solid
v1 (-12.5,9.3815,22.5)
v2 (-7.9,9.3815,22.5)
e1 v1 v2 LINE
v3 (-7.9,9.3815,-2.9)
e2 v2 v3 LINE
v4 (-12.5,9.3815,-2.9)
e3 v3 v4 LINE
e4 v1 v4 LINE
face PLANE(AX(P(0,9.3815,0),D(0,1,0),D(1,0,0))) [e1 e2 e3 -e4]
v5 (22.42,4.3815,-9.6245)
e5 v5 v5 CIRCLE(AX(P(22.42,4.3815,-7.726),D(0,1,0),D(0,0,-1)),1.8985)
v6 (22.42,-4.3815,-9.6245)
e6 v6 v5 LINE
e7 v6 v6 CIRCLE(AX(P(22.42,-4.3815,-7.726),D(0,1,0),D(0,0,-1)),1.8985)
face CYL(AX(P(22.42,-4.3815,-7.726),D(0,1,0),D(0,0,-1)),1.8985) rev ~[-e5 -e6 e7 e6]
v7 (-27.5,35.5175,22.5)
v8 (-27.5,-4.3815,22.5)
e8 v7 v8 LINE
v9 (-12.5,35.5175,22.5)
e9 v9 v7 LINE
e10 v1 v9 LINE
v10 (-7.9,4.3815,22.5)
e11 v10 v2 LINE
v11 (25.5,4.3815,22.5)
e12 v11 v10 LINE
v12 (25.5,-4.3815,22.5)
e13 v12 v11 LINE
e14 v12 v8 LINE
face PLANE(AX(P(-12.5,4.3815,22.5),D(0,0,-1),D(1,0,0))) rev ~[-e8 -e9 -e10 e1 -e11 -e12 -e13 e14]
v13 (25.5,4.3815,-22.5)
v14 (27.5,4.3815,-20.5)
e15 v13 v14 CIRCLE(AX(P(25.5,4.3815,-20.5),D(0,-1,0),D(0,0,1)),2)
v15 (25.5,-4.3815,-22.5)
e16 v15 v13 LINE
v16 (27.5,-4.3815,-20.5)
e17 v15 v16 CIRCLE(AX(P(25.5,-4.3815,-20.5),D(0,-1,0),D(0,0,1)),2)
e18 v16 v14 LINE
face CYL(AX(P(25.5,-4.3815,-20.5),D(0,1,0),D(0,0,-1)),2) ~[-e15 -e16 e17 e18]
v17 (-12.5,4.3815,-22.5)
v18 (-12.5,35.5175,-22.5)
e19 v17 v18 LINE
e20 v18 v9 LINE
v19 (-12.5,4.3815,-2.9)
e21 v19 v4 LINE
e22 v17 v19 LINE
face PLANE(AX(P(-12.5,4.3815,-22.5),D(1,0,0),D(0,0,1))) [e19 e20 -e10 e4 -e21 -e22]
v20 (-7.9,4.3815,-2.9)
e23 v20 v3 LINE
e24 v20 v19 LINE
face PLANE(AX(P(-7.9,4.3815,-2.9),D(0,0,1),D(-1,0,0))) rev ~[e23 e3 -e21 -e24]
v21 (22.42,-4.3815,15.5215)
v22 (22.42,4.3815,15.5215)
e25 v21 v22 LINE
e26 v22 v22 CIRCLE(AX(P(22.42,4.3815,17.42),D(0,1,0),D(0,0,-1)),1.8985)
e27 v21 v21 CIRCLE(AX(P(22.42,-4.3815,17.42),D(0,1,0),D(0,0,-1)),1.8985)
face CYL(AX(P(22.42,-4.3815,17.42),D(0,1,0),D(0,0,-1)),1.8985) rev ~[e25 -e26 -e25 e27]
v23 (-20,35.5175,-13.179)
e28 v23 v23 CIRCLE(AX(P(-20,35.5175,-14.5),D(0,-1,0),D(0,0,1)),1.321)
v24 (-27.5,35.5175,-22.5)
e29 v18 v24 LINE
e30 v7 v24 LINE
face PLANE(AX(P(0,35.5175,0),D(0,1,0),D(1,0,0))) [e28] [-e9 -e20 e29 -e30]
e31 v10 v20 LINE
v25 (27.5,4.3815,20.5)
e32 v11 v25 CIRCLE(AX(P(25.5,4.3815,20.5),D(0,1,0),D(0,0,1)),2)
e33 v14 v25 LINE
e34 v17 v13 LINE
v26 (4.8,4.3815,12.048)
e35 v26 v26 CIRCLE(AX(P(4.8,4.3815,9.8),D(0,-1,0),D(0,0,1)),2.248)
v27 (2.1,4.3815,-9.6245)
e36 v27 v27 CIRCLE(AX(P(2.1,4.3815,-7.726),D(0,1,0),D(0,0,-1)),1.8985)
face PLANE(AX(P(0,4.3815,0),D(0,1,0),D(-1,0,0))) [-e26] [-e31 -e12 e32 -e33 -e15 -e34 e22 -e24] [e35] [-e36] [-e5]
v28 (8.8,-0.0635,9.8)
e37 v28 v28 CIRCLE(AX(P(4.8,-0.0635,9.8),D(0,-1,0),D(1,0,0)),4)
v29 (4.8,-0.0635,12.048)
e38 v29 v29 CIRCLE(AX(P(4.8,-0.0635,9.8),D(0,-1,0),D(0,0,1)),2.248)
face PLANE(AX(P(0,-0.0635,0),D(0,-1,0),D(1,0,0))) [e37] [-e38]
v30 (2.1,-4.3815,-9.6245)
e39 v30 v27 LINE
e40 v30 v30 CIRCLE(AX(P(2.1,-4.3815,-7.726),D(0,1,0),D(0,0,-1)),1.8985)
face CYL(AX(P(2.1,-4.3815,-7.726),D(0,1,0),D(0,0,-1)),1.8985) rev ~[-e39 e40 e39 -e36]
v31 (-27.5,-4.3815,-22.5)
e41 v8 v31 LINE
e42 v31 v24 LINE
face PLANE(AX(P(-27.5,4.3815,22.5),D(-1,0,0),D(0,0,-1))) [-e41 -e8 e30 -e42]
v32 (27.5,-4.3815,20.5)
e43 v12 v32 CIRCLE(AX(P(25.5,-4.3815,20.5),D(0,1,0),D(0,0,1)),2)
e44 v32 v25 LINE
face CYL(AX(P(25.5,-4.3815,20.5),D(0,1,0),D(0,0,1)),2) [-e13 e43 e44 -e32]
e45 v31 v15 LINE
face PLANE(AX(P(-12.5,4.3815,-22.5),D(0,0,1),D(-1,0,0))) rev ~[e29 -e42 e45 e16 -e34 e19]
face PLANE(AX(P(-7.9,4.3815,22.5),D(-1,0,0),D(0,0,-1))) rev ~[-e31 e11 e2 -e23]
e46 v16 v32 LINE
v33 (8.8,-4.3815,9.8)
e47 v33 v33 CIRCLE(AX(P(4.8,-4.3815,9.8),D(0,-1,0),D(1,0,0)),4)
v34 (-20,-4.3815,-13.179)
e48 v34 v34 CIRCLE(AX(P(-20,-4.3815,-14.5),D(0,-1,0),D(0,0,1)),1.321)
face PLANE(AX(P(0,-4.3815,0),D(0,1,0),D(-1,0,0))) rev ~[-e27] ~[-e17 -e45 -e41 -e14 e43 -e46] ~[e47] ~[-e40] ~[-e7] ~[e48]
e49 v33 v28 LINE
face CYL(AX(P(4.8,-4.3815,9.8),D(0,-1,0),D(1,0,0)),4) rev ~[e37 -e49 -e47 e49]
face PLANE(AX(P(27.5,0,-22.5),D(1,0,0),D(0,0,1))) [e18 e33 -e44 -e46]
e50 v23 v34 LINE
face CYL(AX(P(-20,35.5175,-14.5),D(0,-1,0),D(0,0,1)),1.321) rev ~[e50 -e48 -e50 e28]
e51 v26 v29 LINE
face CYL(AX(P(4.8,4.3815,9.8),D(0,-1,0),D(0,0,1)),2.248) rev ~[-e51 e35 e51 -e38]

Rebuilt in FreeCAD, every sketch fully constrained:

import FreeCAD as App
import Part
import Sketcher

V = App.Vector
Q = App.Units.Quantity


def edges_at(feature, points):
    """Names of the edges that pass closest to the given points."""
    edges = feature.Shape.Edges
    near = lambda p: min(range(len(edges)), key=lambda i: edges[i].distToShape(Part.Vertex(*p))[0])
    return sorted({f"Edge{near(p) + 1}" for p in points})


def add_polygon(sketch, points):
    """Adds a closed chain of lines whose ends are joined by coincident constraints."""
    first, n = sketch.GeometryCount, len(points)
    for a, b in zip(points, points[1:] + points[:1]):
        sketch.addGeometry(Part.LineSegment(App.Vector(*a, 0), App.Vector(*b, 0)), False)
    for i in range(n):
        sketch.addConstraint(Sketcher.Constraint("Coincident", first + i, 2, first + (i + 1) % n, 1))

doc = App.newDocument("Part")
body = doc.addObject("PartDesign::Body", "Body")

sketch1 = body.newObject("Sketcher::SketchObject", "Sketch")
sketch1.AttachmentSupport = (doc.getObject("XZ_Plane"), [""])
sketch1.MapMode = "FlatFace"
add_polygon(sketch1, [(-28, 22), (28, 22), (28, -22), (-28, -22)])
sketch1.addConstraint(Sketcher.Constraint("Horizontal", 0))
sketch1.addConstraint(Sketcher.Constraint("Vertical", 1))
sketch1.addConstraint(Sketcher.Constraint("Horizontal", 2))
sketch1.addConstraint(Sketcher.Constraint("Vertical", 3))
sketch1.addConstraint(Sketcher.Constraint("Symmetric", 0, 2, 2, 2, -1, 1))
sketch1.addConstraint(Sketcher.Constraint("DistanceX", 0, 1, 0, 2, Q("55 mm")))
sketch1.addConstraint(Sketcher.Constraint("DistanceY", 1, 2, 1, 1, Q("45 mm")))
pad1 = body.newObject("PartDesign::Pad", "Pad")
pad1.Profile = sketch1
pad1.Length = 8.763
pad1.Midplane = True

sketch2 = body.newObject("Sketcher::SketchObject", "Sketch001")
sketch2.AttachmentSupport = (doc.getObject("XZ_Plane"), [""])
sketch2.MapMode = "FlatFace"
sketch2.AttachmentOffset = App.Placement(V(0, 0, -4.3815), App.Rotation())
sketch2.addGeometry(Part.Circle(V(4.8, 9.8, 0), V(0, 0, 1), 2.2), False)
sketch2.addConstraint(Sketcher.Constraint("Diameter", 0, Q("4.496 mm")))
sketch2.addConstraint(Sketcher.Constraint("DistanceX", -1, 1, 0, 3, Q("4.8 mm")))
sketch2.addConstraint(Sketcher.Constraint("DistanceY", -1, 1, 0, 3, Q("9.8 mm")))
doc.recompute()
hole = body.newObject("PartDesign::Hole", "Hole")
hole.Profile = sketch2
hole.ThreadType = "None"
hole.Diameter = 4.496
hole.DepthType = "ThroughAll"
hole.Reversed = True

sketch3 = body.newObject("Sketcher::SketchObject", "Sketch002")
sketch3.AttachmentSupport = (doc.getObject("XZ_Plane"), [""])
sketch3.MapMode = "FlatFace"
sketch3.AttachmentOffset = App.Placement(V(0, 0, -4.3815), App.Rotation())
add_polygon(sketch3, [(-12, 22), (-12, -22), (-28, -22), (-28, 22)])
sketch3.addConstraint(Sketcher.Constraint("Vertical", 0))
sketch3.addConstraint(Sketcher.Constraint("Horizontal", 1))
sketch3.addConstraint(Sketcher.Constraint("Vertical", 2))
sketch3.addConstraint(Sketcher.Constraint("Horizontal", 3))
sketch3.addConstraint(Sketcher.Constraint("DistanceX", 1, 2, 1, 1, Q("15 mm")))
sketch3.addConstraint(Sketcher.Constraint("DistanceY", 0, 2, 0, 1, Q("45 mm")))
sketch3.addConstraint(Sketcher.Constraint("DistanceX", 0, 2, -1, 1, Q("12.5 mm")))
sketch3.addConstraint(Sketcher.Constraint("DistanceY", 0, 2, -1, 1, Q("22.5 mm")))
pad2 = body.newObject("PartDesign::Pad", "Pad001")
pad2.Profile = sketch3
pad2.Length = 31.136
pad2.Reversed = True

sketch4 = body.newObject("Sketcher::SketchObject", "Sketch003")
sketch4.AttachmentSupport = (doc.getObject("XZ_Plane"), [""])
sketch4.MapMode = "FlatFace"
sketch4.AttachmentOffset = App.Placement(V(0, 0, 4.3815), App.Rotation())
sketch4.addGeometry(Part.Circle(V(4.8, 9.8, 0), V(0, 0, 1), 4), False)
sketch4.addGeometry(Part.Circle(V(4.8, 9.8, 0), V(0, 0, 1), 2.2), False)
sketch4.addConstraint(Sketcher.Constraint("Coincident", 1, 3, 0, 3))
sketch4.addConstraint(Sketcher.Constraint("Diameter", 0, Q("8 mm")))
sketch4.addConstraint(Sketcher.Constraint("Diameter", 1, Q("4.496 mm")))
sketch4.addConstraint(Sketcher.Constraint("DistanceX", -1, 1, 0, 3, Q("4.8 mm")))
sketch4.addConstraint(Sketcher.Constraint("DistanceY", -1, 1, 0, 3, Q("9.8 mm")))
pocket1 = body.newObject("PartDesign::Pocket", "Pocket")
pocket1.Profile = sketch4
pocket1.Length = 4.318

sketch5 = body.newObject("Sketcher::SketchObject", "Sketch004")
sketch5.AttachmentSupport = (doc.getObject("XZ_Plane"), [""])
sketch5.MapMode = "FlatFace"
sketch5.AttachmentOffset = App.Placement(V(0, 0, 4.3815), App.Rotation())
sketch5.addGeometry(Part.Circle(V(22.4, -7.7, 0), V(0, 0, 1), 1.9), False)
sketch5.addGeometry(Part.Circle(V(22.4, 17.4, 0), V(0, 0, 1), 1.9), False)
sketch5.addGeometry(Part.Circle(V(2.1, -7.7, 0), V(0, 0, 1), 1.9), False)
sketch5.addConstraint(Sketcher.Constraint("Equal", 0, 1))
sketch5.addConstraint(Sketcher.Constraint("Equal", 1, 2))
sketch5.addConstraint(Sketcher.Constraint("Horizontal", 0, 3, 2, 3))
sketch5.addConstraint(Sketcher.Constraint("Vertical", 0, 3, 1, 3))
sketch5.addConstraint(Sketcher.Constraint("Diameter", 0, Q("3.797 mm")))
sketch5.addConstraint(Sketcher.Constraint("DistanceX", -1, 1, 2, 3, Q("2.1 mm")))
sketch5.addConstraint(Sketcher.Constraint("DistanceX", -1, 1, 0, 3, Q("22.42 mm")))
sketch5.addConstraint(Sketcher.Constraint("DistanceY", -1, 1, 1, 3, Q("17.42 mm")))
sketch5.addConstraint(Sketcher.Constraint("DistanceY", 0, 3, -1, 1, Q("7.726 mm")))
doc.recompute()
hole2 = body.newObject("PartDesign::Hole", "Hole001")
hole2.Profile = sketch5
hole2.ThreadType = "None"
hole2.Diameter = 3.797
hole2.DepthType = "ThroughAll"
doc.recompute()

fillet = body.newObject("PartDesign::Fillet", "Fillet")
fillet.Base = (hole2, edges_at(hole2, [(27.5, 0, 22.5), (27.5, 0, -22.5)]))
fillet.Radius = 2

sketch6 = body.newObject("Sketcher::SketchObject", "Sketch005")
sketch6.AttachmentSupport = (doc.getObject("XZ_Plane"), [""])
sketch6.MapMode = "FlatFace"
sketch6.AttachmentOffset = App.Placement(V(0, 0, -35.5175), App.Rotation())
sketch6.addGeometry(Part.Circle(V(-20, -14.5, 0), V(0, 0, 1), 1.3), False)
sketch6.addConstraint(Sketcher.Constraint("Diameter", 0, Q("2.642 mm")))
sketch6.addConstraint(Sketcher.Constraint("DistanceX", 0, 3, -1, 1, Q("20 mm")))
sketch6.addConstraint(Sketcher.Constraint("DistanceY", 0, 3, -1, 1, Q("14.5 mm")))
doc.recompute()
hole3 = body.newObject("PartDesign::Hole", "Hole002")
hole3.Profile = sketch6
hole3.ThreadType = "None"
hole3.Diameter = 2.642
hole3.DepthType = "ThroughAll"
hole3.Reversed = True

sketch7 = body.newObject("Sketcher::SketchObject", "Sketch006")
sketch7.AttachmentSupport = (doc.getObject("XZ_Plane"), [""])
sketch7.MapMode = "FlatFace"
sketch7.AttachmentOffset = App.Placement(V(0, 0, -4.3815), App.Rotation())
add_polygon(sketch7, [(-12.5, -2.9), (-12.5, 22.5), (-7.9, 22.5), (-7.9, -2.9)])
sketch7.addConstraint(Sketcher.Constraint("Vertical", 0))
sketch7.addConstraint(Sketcher.Constraint("Horizontal", 1))
sketch7.addConstraint(Sketcher.Constraint("Vertical", 2))
sketch7.addConstraint(Sketcher.Constraint("Horizontal", 3))
sketch7.addConstraint(Sketcher.Constraint("DistanceX", 1, 1, 1, 2, Q("4.6 mm")))
sketch7.addConstraint(Sketcher.Constraint("DistanceY", 0, 1, 0, 2, Q("25.4 mm")))
sketch7.addConstraint(Sketcher.Constraint("DistanceX", 0, 2, -1, 1, Q("12.5 mm")))
sketch7.addConstraint(Sketcher.Constraint("DistanceY", -1, 1, 0, 2, Q("22.5 mm")))
pad3 = body.newObject("PartDesign::Pad", "Pad002")
pad3.Profile = sketch7
pad3.Length = 5
pad3.Reversed = True

doc.recompute()
